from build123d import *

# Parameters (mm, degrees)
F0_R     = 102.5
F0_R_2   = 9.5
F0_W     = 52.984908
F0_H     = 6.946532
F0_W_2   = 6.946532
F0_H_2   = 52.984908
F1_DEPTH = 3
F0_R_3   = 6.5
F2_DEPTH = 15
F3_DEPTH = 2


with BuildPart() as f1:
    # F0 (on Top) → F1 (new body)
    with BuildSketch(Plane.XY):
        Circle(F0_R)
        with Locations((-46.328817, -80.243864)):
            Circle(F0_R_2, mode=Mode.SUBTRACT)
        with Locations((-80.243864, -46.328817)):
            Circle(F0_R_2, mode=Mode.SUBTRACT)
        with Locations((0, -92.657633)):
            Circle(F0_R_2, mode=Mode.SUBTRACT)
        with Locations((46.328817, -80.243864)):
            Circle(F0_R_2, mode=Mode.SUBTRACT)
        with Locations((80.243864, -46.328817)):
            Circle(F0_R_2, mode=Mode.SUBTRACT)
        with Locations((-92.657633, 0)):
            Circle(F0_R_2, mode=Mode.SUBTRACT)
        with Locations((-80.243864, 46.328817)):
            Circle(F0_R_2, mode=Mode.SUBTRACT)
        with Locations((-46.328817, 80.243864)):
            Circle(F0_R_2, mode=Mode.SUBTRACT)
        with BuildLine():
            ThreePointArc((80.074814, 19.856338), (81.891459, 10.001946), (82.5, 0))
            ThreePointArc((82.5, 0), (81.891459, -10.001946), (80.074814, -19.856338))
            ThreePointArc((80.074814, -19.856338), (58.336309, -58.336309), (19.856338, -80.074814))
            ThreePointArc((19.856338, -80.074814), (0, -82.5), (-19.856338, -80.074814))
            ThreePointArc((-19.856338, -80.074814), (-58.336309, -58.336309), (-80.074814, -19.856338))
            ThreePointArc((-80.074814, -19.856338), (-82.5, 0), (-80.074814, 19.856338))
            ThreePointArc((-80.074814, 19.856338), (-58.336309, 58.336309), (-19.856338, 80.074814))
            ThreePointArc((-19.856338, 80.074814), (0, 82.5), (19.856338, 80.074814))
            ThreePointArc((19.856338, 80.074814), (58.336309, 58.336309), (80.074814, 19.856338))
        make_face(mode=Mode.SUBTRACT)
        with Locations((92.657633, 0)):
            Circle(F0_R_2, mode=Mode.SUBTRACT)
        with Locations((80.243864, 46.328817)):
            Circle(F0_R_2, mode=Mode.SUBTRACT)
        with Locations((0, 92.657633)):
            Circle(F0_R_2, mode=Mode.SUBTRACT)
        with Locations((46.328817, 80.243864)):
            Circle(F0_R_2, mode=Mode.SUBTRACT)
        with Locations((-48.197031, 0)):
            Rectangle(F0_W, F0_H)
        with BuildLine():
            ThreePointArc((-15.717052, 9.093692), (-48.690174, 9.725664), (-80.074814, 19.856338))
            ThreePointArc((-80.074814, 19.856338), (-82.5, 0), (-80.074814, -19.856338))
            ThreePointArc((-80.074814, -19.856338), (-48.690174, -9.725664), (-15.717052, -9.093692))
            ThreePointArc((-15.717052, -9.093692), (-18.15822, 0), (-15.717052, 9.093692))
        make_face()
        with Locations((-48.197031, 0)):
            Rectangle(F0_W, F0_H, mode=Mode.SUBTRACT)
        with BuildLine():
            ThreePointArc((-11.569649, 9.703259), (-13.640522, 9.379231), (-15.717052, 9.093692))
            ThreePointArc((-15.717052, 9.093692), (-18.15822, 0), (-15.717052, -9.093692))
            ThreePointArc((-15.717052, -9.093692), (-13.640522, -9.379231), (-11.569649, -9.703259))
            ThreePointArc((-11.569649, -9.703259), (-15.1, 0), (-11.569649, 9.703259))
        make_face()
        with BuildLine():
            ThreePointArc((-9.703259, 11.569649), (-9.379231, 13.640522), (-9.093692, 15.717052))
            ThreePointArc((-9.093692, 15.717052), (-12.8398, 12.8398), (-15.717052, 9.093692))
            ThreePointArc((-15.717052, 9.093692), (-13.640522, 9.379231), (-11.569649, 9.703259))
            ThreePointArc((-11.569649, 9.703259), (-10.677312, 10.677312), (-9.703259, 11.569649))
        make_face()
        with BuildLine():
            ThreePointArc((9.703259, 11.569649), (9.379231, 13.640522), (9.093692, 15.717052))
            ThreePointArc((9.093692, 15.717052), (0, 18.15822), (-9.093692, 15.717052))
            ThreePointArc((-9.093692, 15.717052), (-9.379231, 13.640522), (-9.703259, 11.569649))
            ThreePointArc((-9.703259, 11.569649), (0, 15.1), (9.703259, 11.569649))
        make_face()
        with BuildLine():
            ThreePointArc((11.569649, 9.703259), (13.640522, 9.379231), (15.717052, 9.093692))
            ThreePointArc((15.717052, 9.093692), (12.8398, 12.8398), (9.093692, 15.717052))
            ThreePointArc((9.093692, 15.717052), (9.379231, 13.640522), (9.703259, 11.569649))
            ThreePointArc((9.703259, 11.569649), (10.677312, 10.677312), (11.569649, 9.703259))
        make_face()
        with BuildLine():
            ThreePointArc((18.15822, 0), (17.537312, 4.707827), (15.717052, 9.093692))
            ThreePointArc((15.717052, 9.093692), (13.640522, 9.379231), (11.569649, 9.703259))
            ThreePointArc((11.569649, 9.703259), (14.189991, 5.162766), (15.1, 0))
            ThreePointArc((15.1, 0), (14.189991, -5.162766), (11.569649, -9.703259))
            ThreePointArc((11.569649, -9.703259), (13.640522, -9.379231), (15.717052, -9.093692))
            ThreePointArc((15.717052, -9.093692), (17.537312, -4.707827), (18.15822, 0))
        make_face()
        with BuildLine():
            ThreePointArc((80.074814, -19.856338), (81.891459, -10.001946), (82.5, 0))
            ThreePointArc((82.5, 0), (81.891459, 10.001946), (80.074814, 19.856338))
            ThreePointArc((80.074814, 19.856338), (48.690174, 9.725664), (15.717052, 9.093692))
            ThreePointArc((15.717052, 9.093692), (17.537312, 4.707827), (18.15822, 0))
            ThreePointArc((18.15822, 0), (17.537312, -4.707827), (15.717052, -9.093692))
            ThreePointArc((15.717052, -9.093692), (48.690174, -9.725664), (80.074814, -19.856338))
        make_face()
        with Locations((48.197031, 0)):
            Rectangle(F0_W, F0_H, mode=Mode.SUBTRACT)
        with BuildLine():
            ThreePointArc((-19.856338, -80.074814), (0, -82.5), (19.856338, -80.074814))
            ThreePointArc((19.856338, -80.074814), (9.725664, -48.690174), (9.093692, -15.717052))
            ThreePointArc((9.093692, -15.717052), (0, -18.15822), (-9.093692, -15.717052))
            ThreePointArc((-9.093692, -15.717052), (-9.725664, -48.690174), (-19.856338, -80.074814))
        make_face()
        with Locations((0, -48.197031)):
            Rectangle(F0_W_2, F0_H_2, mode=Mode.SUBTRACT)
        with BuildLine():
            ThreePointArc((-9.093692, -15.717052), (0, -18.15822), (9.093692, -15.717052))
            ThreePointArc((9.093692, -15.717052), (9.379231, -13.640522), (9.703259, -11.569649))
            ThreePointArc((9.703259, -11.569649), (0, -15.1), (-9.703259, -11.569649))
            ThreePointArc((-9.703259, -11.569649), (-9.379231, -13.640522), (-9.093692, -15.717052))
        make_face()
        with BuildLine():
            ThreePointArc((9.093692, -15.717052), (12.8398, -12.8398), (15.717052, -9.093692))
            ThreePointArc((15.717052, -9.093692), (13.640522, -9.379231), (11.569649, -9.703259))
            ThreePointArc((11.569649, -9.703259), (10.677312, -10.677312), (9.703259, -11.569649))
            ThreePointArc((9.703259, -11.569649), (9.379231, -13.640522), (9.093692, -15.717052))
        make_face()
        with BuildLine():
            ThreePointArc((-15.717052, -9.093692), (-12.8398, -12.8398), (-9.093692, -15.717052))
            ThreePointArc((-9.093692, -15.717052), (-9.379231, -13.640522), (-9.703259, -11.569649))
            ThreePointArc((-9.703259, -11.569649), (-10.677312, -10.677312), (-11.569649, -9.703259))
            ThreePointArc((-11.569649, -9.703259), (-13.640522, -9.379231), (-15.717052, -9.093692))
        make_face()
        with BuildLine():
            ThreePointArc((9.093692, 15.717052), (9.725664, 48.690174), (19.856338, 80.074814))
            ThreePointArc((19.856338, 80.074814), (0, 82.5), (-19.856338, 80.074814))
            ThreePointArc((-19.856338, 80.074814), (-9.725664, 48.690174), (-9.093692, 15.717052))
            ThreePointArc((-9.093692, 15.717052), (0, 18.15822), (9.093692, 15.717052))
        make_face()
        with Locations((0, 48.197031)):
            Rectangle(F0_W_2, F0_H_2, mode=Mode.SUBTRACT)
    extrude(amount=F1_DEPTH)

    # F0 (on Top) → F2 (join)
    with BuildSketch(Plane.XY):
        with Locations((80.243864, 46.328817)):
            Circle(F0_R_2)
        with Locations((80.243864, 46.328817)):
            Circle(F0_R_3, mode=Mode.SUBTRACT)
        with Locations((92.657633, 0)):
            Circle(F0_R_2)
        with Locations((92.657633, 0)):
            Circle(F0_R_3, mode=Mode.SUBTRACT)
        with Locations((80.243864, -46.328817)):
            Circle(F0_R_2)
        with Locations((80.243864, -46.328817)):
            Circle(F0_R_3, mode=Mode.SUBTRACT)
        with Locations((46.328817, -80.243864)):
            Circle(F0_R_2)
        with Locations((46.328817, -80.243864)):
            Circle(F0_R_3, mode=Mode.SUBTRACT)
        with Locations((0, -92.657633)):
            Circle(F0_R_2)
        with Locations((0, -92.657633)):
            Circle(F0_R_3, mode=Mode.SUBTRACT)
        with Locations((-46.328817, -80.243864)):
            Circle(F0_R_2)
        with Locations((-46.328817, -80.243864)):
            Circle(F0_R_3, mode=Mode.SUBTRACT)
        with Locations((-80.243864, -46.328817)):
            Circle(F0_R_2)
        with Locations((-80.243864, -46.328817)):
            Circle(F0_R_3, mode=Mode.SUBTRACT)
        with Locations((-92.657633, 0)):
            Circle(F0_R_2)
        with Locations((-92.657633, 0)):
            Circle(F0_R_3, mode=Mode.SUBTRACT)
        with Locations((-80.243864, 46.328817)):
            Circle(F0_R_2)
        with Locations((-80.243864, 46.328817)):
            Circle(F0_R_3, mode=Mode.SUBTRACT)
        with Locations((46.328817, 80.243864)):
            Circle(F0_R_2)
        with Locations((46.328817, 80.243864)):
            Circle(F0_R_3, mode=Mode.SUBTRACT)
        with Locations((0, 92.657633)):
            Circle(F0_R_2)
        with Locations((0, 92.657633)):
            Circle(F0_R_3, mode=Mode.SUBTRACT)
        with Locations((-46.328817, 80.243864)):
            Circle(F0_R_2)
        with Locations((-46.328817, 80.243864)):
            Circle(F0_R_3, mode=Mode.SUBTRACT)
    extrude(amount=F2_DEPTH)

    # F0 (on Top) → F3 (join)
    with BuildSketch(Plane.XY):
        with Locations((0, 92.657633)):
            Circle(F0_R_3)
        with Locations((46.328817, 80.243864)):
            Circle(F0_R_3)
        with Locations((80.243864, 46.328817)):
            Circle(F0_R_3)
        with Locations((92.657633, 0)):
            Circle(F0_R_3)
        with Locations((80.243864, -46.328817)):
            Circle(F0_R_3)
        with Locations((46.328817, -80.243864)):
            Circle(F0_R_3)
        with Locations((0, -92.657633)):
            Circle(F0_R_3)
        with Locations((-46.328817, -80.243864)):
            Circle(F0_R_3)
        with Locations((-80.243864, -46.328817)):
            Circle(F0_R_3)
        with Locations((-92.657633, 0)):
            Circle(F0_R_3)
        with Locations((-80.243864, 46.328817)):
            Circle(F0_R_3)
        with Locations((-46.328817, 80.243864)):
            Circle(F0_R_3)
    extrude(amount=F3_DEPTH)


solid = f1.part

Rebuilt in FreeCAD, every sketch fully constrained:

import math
import FreeCAD as App
import Part
import Sketcher
from FreeCAD import Vector

doc = App.newDocument("Part")
body = doc.addObject("PartDesign::Body", "Body")

sketch1 = body.newObject("Sketcher::SketchObject", "Sketch")
sketch1.AttachmentSupport = (doc.getObject("XY_Plane"), [""])
sketch1.MapMode = "FlatFace"
sketch1.addGeometry([
    Part.Circle(Vector(0, 0, 0), Vector(0, 0, 1), 102.5),
    Part.Circle(Vector(-46.328817, -80.243864, 0), Vector(0, 0, 1), 9.5),
    Part.Circle(Vector(-80.243864, -46.328817, 0), Vector(0, 0, 1), 9.5),
    Part.ArcOfCircle(Part.Circle(Vector(-121.11317, -30.062673, 0), Vector(0, 0, 1), 112.934318), math.radians(-26.285399), math.radians(7.297783)),
    Part.ArcOfCircle(Part.Circle(Vector(0.000003, 0.000003, 0), Vector(0, 0, 1), 82.500004), math.radians(-166.07315), math.radians(-103.92685)),
    Part.ArcOfCircle(Part.Circle(Vector(-30.062673, -121.11317, 0), Vector(0, 0, 1), 112.934318), math.radians(82.702217), math.radians(116.285399)),
    Part.ArcOfCircle(Part.Circle(Vector(0.000017, 0.000017, 0), Vector(0, 0, 1), 18.158243), math.radians(-149.946837), math.radians(-120.053163)),
    Part.Circle(Vector(0, -92.657633, 0), Vector(0, 0, 1), 9.5),
    Part.Circle(Vector(46.328817, -80.243864, 0), Vector(0, 0, 1), 9.5),
    Part.LineSegment(Vector(3.473266, -74.689485, 0), Vector(-3.473266, -74.689485, 0)),
    Part.LineSegment(Vector(-3.473266, -74.689485, 0), Vector(-3.473266, -21.704577, 0)),
    Part.LineSegment(Vector(-3.473266, -21.704577, 0), Vector(3.473266, -21.704577, 0)),
    Part.LineSegment(Vector(3.473266, -21.704577, 0), Vector(3.473266, -74.689485, 0)),
    Part.ArcOfCircle(Part.Circle(Vector(-0.000003, 0.000003, 0), Vector(0, 0, 1), 82.500004), math.radians(-76.07315), math.radians(-13.92685)),
    Part.ArcOfCircle(Part.Circle(Vector(121.11317, -30.062673, 0), Vector(0, 0, 1), 112.934318), math.radians(172.702217), math.radians(206.285399)),
    Part.ArcOfCircle(Part.Circle(Vector(-0.000017, 0.000017, 0), Vector(0, 0, 1), 18.158243), math.radians(-59.946837), math.radians(-30.053163)),
    Part.ArcOfCircle(Part.Circle(Vector(30.062673, -121.11317, 0), Vector(0, 0, 1), 112.934318), math.radians(63.714601), math.radians(97.297783)),
    Part.Circle(Vector(80.243864, -46.328817, 0), Vector(0, 0, 1), 9.5),
    Part.Circle(Vector(-92.657633, 0, 0), Vector(0, 0, 1), 9.5),
    Part.Circle(Vector(-80.243864, 46.328817, 0), Vector(0, 0, 1), 9.5),
    Part.LineSegment(Vector(-21.704577, -3.473266, 0), Vector(-74.689485, -3.473266, 0)),
    Part.LineSegment(Vector(-74.689485, -3.473266, 0), Vector(-74.689485, 3.473266, 0)),
    Part.LineSegment(Vector(-74.689485, 3.473266, 0), Vector(-21.704577, 3.473266, 0)),
    Part.LineSegment(Vector(-21.704577, 3.473266, 0), Vector(-21.704577, -3.473266, 0)),
    Part.ArcOfCircle(Part.Circle(Vector(0.000017, -0.000017, 0), Vector(0, 0, 1), 18.158243), math.radians(120.053163), math.radians(149.946837)),
    Part.ArcOfCircle(Part.Circle(Vector(-30.062673, 121.11317, 0), Vector(0, 0, 1), 112.934318), math.radians(-116.285399), math.radians(-82.702217)),
    Part.ArcOfCircle(Part.Circle(Vector(0.000003, -0.000003, 0), Vector(0, 0, 1), 82.500004), math.radians(103.92685), math.radians(166.07315)),
    Part.ArcOfCircle(Part.Circle(Vector(-121.11317, 30.062673, 0), Vector(0, 0, 1), 112.934318), math.radians(-7.297783), math.radians(26.285399)),
    Part.Circle(Vector(-46.328817, 80.243864, 0), Vector(0, 0, 1), 9.5),
    Part.ArcOfCircle(Part.Circle(Vector(0, 0.000002, 0), Vector(0, 0, 1), 15.100002), math.radians(-129.985958), math.radians(-50.014042)),
    Part.ArcOfCircle(Part.Circle(Vector(0.000184, 0.000184, 0), Vector(0, 0, 1), 15.10026), math.radians(-140.013951), math.radians(-129.986049)),
    Part.ArcOfCircle(Part.Circle(Vector(0.000002, 0, 0), Vector(0, 0, 1), 15.100002), math.radians(140.014042), math.radians(219.985958)),
    Part.ArcOfCircle(Part.Circle(Vector(0.000184, -0.000184, 0), Vector(0, 0, 1), 15.10026), math.radians(129.986049), math.radians(140.013951)),
    Part.ArcOfCircle(Part.Circle(Vector(0, -0.000002, 0), Vector(0, 0, 1), 15.100002), math.radians(50.014042), math.radians(129.985958)),
    Part.ArcOfCircle(Part.Circle(Vector(-0.000184, -0.000184, 0), Vector(0, 0, 1), 15.10026), math.radians(39.986049), math.radians(50.013951)),
    Part.ArcOfCircle(Part.Circle(Vector(-0.000005, -0.000001, 0), Vector(0, 0, 1), 15.100005), math.radians(0.000004), math.radians(39.985954)),
    Part.ArcOfCircle(Part.Circle(Vector(-0.000005, 0.000001, 0), Vector(0, 0, 1), 15.100005), math.radians(-39.985954), math.radians(-0.000004)),
    Part.ArcOfCircle(Part.Circle(Vector(-0.000184, 0.000184, 0), Vector(0, 0, 1), 15.10026), math.radians(-50.013951), math.radians(-39.986049)),
    Part.LineSegment(Vector(74.689485, -3.473266, 0), Vector(21.704577, -3.473266, 0)),
    Part.LineSegment(Vector(21.704577, -3.473266, 0), Vector(21.704577, 3.473266, 0)),
    Part.LineSegment(Vector(21.704577, 3.473266, 0), Vector(74.689485, 3.473266, 0)),
    Part.LineSegment(Vector(74.689485, 3.473266, 0), Vector(74.689485, -3.473266, 0)),
    Part.LineSegment(Vector(3.473266, 21.704577, 0), Vector(-3.473266, 21.704577, 0)),
    Part.LineSegment(Vector(-3.473266, 21.704577, 0), Vector(-3.473266, 74.689485, 0)),
    Part.LineSegment(Vector(-3.473266, 74.689485, 0), Vector(3.473266, 74.689485, 0)),
    Part.LineSegment(Vector(3.473266, 74.689485, 0), Vector(3.473266, 21.704577, 0)),
    Part.ArcOfCircle(Part.Circle(Vector(-0.000003, -0.000003, 0), Vector(0, 0, 1), 82.500004), math.radians(13.92685), math.radians(76.07315)),
    Part.ArcOfCircle(Part.Circle(Vector(30.062673, 121.11317, 0), Vector(0, 0, 1), 112.934318), math.radians(-97.297783), math.radians(-63.714601)),
    Part.ArcOfCircle(Part.Circle(Vector(-0.000017, -0.000017, 0), Vector(0, 0, 1), 18.158243), math.radians(30.053163), math.radians(59.946837)),
    Part.ArcOfCircle(Part.Circle(Vector(121.11317, 30.062673, 0), Vector(0, 0, 1), 112.934318), math.radians(153.714601), math.radians(187.297783)),
    Part.Circle(Vector(92.657633, 0, 0), Vector(0, 0, 1), 9.5),
    Part.Circle(Vector(80.243864, 46.328817, 0), Vector(0, 0, 1), 9.5),
    Part.Circle(Vector(0, 92.657633, 0), Vector(0, 0, 1), 9.5),
    Part.Circle(Vector(46.328817, 80.243864, 0), Vector(0, 0, 1), 9.5),
], False)
sketch1.addConstraint([
    Sketcher.Constraint("Coincident", 3, 1, 4, 2),
    Sketcher.Constraint("Coincident", 4, 1, 5, 2),
    Sketcher.Constraint("Coincident", 5, 1, 6, 1),
    Sketcher.Constraint("Coincident", 6, 2, 3, 2),
    Sketcher.Constraint("Coincident", 9, 2, 10, 1),
    Sketcher.Constraint("Coincident", 10, 2, 11, 1),
    Sketcher.Constraint("Coincident", 11, 2, 12, 1),
    Sketcher.Constraint("Coincident", 12, 2, 9, 1),
    Sketcher.Constraint("Coincident", 13, 1, 14, 2),
    Sketcher.Constraint("Coincident", 14, 1, 15, 1),
    Sketcher.Constraint("Coincident", 15, 2, 16, 2),
    Sketcher.Constraint("Coincident", 16, 1, 13, 2),
    Sketcher.Constraint("Coincident", 20, 2, 21, 1),
    Sketcher.Constraint("Coincident", 21, 2, 22, 1),
    Sketcher.Constraint("Coincident", 22, 2, 23, 1),
    Sketcher.Constraint("Coincident", 23, 2, 20, 1),
    Sketcher.Constraint("Coincident", 24, 2, 25, 2),
    Sketcher.Constraint("Coincident", 25, 1, 26, 2),
    Sketcher.Constraint("Coincident", 26, 1, 27, 2),
    Sketcher.Constraint("Coincident", 27, 1, 24, 1),
    Sketcher.Constraint("Coincident", 29, 1, 30, 2),
    Sketcher.Constraint("Coincident", 30, 1, 31, 2),
    Sketcher.Constraint("Coincident", 31, 1, 32, 2),
    Sketcher.Constraint("Coincident", 32, 1, 33, 2),
    Sketcher.Constraint("Coincident", 33, 1, 34, 2),
    Sketcher.Constraint("Coincident", 34, 1, 35, 2),
    Sketcher.Constraint("Coincident", 35, 1, 36, 2),
    Sketcher.Constraint("Coincident", 36, 1, 37, 2),
    Sketcher.Constraint("Coincident", 37, 1, 29, 2),
    Sketcher.Constraint("Coincident", 38, 2, 39, 1),
    Sketcher.Constraint("Coincident", 39, 2, 40, 1),
    Sketcher.Constraint("Coincident", 40, 2, 41, 1),
    Sketcher.Constraint("Coincident", 41, 2, 38, 1),
    Sketcher.Constraint("Coincident", 42, 2, 43, 1),
    Sketcher.Constraint("Coincident", 43, 2, 44, 1),
    Sketcher.Constraint("Coincident", 44, 2, 45, 1),
    Sketcher.Constraint("Coincident", 45, 2, 42, 1),
    Sketcher.Constraint("Coincident", 46, 1, 47, 2),
    Sketcher.Constraint("Coincident", 47, 1, 48, 1),
    Sketcher.Constraint("Coincident", 48, 2, 49, 2),
    Sketcher.Constraint("Coincident", 49, 1, 46, 2),
    Sketcher.Constraint("Horizontal", 9),
    Sketcher.Constraint("Vertical", 10),
    Sketcher.Constraint("Horizontal", 11),
    Sketcher.Constraint("Vertical", 12),
    Sketcher.Constraint("Horizontal", 20),
    Sketcher.Constraint("Vertical", 21),
    Sketcher.Constraint("Horizontal", 22),
    Sketcher.Constraint("Vertical", 23),
    Sketcher.Constraint("Horizontal", 38),
    Sketcher.Constraint("Vertical", 39),
    Sketcher.Constraint("Horizontal", 40),
    Sketcher.Constraint("Vertical", 41),
    Sketcher.Constraint("Horizontal", 42),
    Sketcher.Constraint("Vertical", 43),
    Sketcher.Constraint("Horizontal", 44),
    Sketcher.Constraint("Vertical", 45),
    Sketcher.Constraint("Coincident", 0, 3, -1, 1),
    Sketcher.Constraint("Coincident", 4, 3, -1, 1),
    Sketcher.Constraint("Coincident", 13, 3, -1, 1),
    Sketcher.Constraint("Coincident", 26, 3, -1, 1),
    Sketcher.Constraint("Coincident", 29, 3, -1, 1),
    Sketcher.Constraint("Coincident", 31, 3, -1, 1),
    Sketcher.Constraint("Coincident", 33, 3, -1, 1),
    Sketcher.Constraint("Coincident", 35, 3, -1, 1),
    Sketcher.Constraint("Coincident", 36, 3, -1, 1),
    Sketcher.Constraint("Coincident", 46, 3, -1, 1),
    Sketcher.Constraint("PointOnObject", 7, 3, -2),
    Sketcher.Constraint("PointOnObject", 18, 3, -1),
    Sketcher.Constraint("PointOnObject", 50, 3, -1),
    Sketcher.Constraint("PointOnObject", 52, 3, -2),
    Sketcher.Constraint("PointOnObject", 35, 1, -1),
    Sketcher.Constraint("Diameter", 0, 205.0),
    Sketcher.Constraint("Diameter", 1, 19.0),
    Sketcher.Constraint("Diameter", 2, 19.0),
    Sketcher.Constraint("Diameter", 7, 19.0),
    Sketcher.Constraint("Diameter", 8, 19.0),
    Sketcher.Constraint("Diameter", 17, 19.0),
    Sketcher.Constraint("Diameter", 18, 19.0),
    Sketcher.Constraint("Diameter", 19, 19.0),
    Sketcher.Constraint("Diameter", 28, 19.0),
    Sketcher.Constraint("Diameter", 50, 19.0),
    Sketcher.Constraint("Diameter", 51, 19.0),
    Sketcher.Constraint("Diameter", 52, 19.0),
    Sketcher.Constraint("Diameter", 53, 19.0),
    Sketcher.Constraint("Radius", 29, 15.100002),
    Sketcher.Constraint("Radius", 31, 15.100002),
    Sketcher.Constraint("Radius", 33, 15.100002),
    Sketcher.Constraint("DistanceX", -1, 1, 35, 1, 15.1),
    Sketcher.Constraint("Radius", 3, 112.934318),
    Sketcher.Constraint("Radius", 5, 112.934318),
    Sketcher.Constraint("Radius", 14, 112.934318),
    Sketcher.Constraint("Radius", 16, 112.934318),
    Sketcher.Constraint("Radius", 25, 112.934318),
    Sketcher.Constraint("Radius", 27, 112.934318),
    Sketcher.Constraint("Radius", 30, 15.10026),
    Sketcher.Constraint("Radius", 32, 15.10026),
    Sketcher.Constraint("Radius", 34, 15.10026),
    Sketcher.Constraint("Radius", 37, 15.10026),
    Sketcher.Constraint("Radius", 47, 112.934318),
    Sketcher.Constraint("Radius", 49, 112.934318),
    Sketcher.Constraint("Radius", 4, 82.500004),
    Sketcher.Constraint("Radius", 6, 18.158243),
    Sketcher.Constraint("Radius", 13, 82.500004),
    Sketcher.Constraint("Radius", 15, 18.158243),
    Sketcher.Constraint("Radius", 24, 18.158243),
    Sketcher.Constraint("Radius", 26, 82.500004),
    Sketcher.Constraint("Radius", 46, 82.500004),
    Sketcher.Constraint("Radius", 48, 18.158243),
    Sketcher.Constraint("DistanceX", 20, 2, 20, 1, 52.984908),
    Sketcher.Constraint("DistanceX", 38, 2, 38, 1, 52.984908),
    Sketcher.Constraint("DistanceY", 10, 1, 10, 2, 52.984908),
    Sketcher.Constraint("DistanceY", 43, 1, 43, 2, 52.984908),
    Sketcher.Constraint("DistanceX", 9, 2, 9, 1, 6.946532),
    Sketcher.Constraint("DistanceX", 42, 2, 42, 1, 6.946532),
    Sketcher.Constraint("DistanceY", 21, 1, 21, 2, 6.946532),
    Sketcher.Constraint("DistanceY", 39, 1, 39, 2, 6.946532),
    Sketcher.Constraint("DistanceX", 3, 3, -1, 1, 121.11317),
    Sketcher.Constraint("DistanceY", 5, 3, -1, 1, 121.11317),
    Sketcher.Constraint("DistanceX", -1, 1, 14, 3, 121.11317),
    Sketcher.Constraint("DistanceY", 16, 3, -1, 1, 121.11317),
    Sketcher.Constraint("DistanceY", -1, 1, 25, 3, 121.11317),
    Sketcher.Constraint("DistanceX", 27, 3, -1, 1, 121.11317),
    Sketcher.Constraint("DistanceY", -1, 1, 47, 3, 121.11317),
    Sketcher.Constraint("DistanceX", -1, 1, 49, 3, 121.11317),
    Sketcher.Constraint("DistanceY", 4, 1, -1, 1, 19.856338),
    Sketcher.Constraint("DistanceX", 6, 2, -1, 1, 9.093692),
    Sketcher.Constraint("DistanceY", 6, 2, -1, 1, 15.717052),
    Sketcher.Constraint("DistanceX", -1, 1, 13, 1, 19.856338),
    Sketcher.Constraint("DistanceX", -1, 1, 15, 2, 15.717052),
    Sketcher.Constraint("DistanceY", 15, 2, -1, 1, 9.093692),
    Sketcher.Constraint("DistanceX", 24, 2, -1, 1, 15.717052),
    Sketcher.Constraint("DistanceY", -1, 1, 24, 2, 9.093692),
    Sketcher.Constraint("DistanceX", 26, 1, -1, 1, 19.856338),
    Sketcher.Constraint("DistanceX", 29, 1, -1, 1, 9.703259),
    Sketcher.Constraint("DistanceX", 30, 1, -1, 1, 11.569649),
    Sketcher.Constraint("DistanceX", 31, 1, -1, 1, 11.569649),
    Sketcher.Constraint("DistanceX", 32, 1, -1, 1, 9.703259),
    Sketcher.Constraint("DistanceX", -1, 1, 33, 1, 9.703259),
    Sketcher.Constraint("DistanceX", -1, 1, 34, 1, 11.569649),
    Sketcher.Constraint("DistanceX", -1, 1, 36, 1, 11.569649),
    Sketcher.Constraint("DistanceX", -1, 1, 37, 1, 9.703259),
    Sketcher.Constraint("DistanceY", -1, 1, 46, 1, 19.856338),
    Sketcher.Constraint("DistanceX", -1, 1, 48, 2, 9.093692),
    Sketcher.Constraint("DistanceY", -1, 1, 48, 2, 15.717052),
    Sketcher.Constraint("DistanceX", 1, 3, -1, 1, 46.328817),
    Sketcher.Constraint("DistanceY", 1, 3, -1, 1, 80.243864),
    Sketcher.Constraint("DistanceX", 2, 3, -1, 1, 80.243864),
    Sketcher.Constraint("DistanceY", 2, 3, -1, 1, 46.328817),
    Sketcher.Constraint("DistanceY", 7, 3, -1, 1, 92.657633),
    Sketcher.Constraint("DistanceX", -1, 1, 8, 3, 46.328817),
    Sketcher.Constraint("DistanceY", 8, 3, -1, 1, 80.243864),
    Sketcher.Constraint("DistanceX", -1, 1, 17, 3, 80.243864),
    Sketcher.Constraint("DistanceY", 17, 3, -1, 1, 46.328817),
    Sketcher.Constraint("DistanceX", 18, 3, -1, 1, 92.657633),
    Sketcher.Constraint("DistanceX", 19, 3, -1, 1, 80.243864),
    Sketcher.Constraint("DistanceY", -1, 1, 19, 3, 46.328817),
    Sketcher.Constraint("DistanceX", 28, 3, -1, 1, 46.328817),
    Sketcher.Constraint("DistanceY", -1, 1, 28, 3, 80.243864),
    Sketcher.Constraint("DistanceX", -1, 1, 50, 3, 92.657633),
    Sketcher.Constraint("DistanceX", -1, 1, 51, 3, 80.243864),
    Sketcher.Constraint("DistanceY", -1, 1, 51, 3, 46.328817),
    Sketcher.Constraint("DistanceY", -1, 1, 52, 3, 92.657633),
    Sketcher.Constraint("DistanceX", -1, 1, 53, 3, 46.328817),
    Sketcher.Constraint("DistanceY", -1, 1, 53, 3, 80.243864),
    Sketcher.Constraint("DistanceX", 5, 1, -1, 1, 15.717052),
    Sketcher.Constraint("DistanceX", 9, 2, -1, 1, 3.473266),
    Sketcher.Constraint("DistanceY", 9, 2, -1, 1, 74.689485),
    Sketcher.Constraint("DistanceX", -1, 1, 14, 1, 9.093692),
    Sketcher.Constraint("DistanceX", 20, 2, -1, 1, 74.689485),
    Sketcher.Constraint("DistanceY", 20, 2, -1, 1, 3.473266),
    Sketcher.Constraint("DistanceX", 27, 1, -1, 1, 9.093692),
    Sketcher.Constraint("DistanceX", -1, 1, 38, 2, 21.704577),
    Sketcher.Constraint("DistanceY", 38, 2, -1, 1, 3.473266),
    Sketcher.Constraint("DistanceX", 42, 2, -1, 1, 3.473266),
    Sketcher.Constraint("DistanceY", -1, 1, 42, 2, 21.704577),
    Sketcher.Constraint("DistanceX", -1, 1, 47, 1, 15.717052),
])
pad1 = body.newObject("PartDesign::Pad", "Pad")
pad1.Profile = sketch1
pad1.Length = 3

sketch2 = body.newObject("Sketcher::SketchObject", "Sketch001")
sketch2.AttachmentSupport = (doc.getObject("XY_Plane"), [""])
sketch2.MapMode = "FlatFace"
sketch2.addGeometry([
    Part.Circle(Vector(80, 46, 0), Vector(0, 0, 1), 10),
    Part.Circle(Vector(80, 46, 0), Vector(0, 0, 1), 6),
    Part.Circle(Vector(93, 0, 0), Vector(0, 0, 1), 10),
    Part.Circle(Vector(93, 0, 0), Vector(0, 0, 1), 6),
    Part.Circle(Vector(80, -46, 0), Vector(0, 0, 1), 10),
    Part.Circle(Vector(80, -46, 0), Vector(0, 0, 1), 6),
    Part.Circle(Vector(46, -80, 0), Vector(0, 0, 1), 10),
    Part.Circle(Vector(46, -80, 0), Vector(0, 0, 1), 6),
    Part.Circle(Vector(0, -93, 0), Vector(0, 0, 1), 10),
    Part.Circle(Vector(0, -93, 0), Vector(0, 0, 1), 6),
    Part.Circle(Vector(-46, -80, 0), Vector(0, 0, 1), 10),
    Part.Circle(Vector(-46, -80, 0), Vector(0, 0, 1), 6),
    Part.Circle(Vector(-80, -46, 0), Vector(0, 0, 1), 10),
    Part.Circle(Vector(-80, -46, 0), Vector(0, 0, 1), 6),
    Part.Circle(Vector(-93, 0, 0), Vector(0, 0, 1), 10),
    Part.Circle(Vector(-93, 0, 0), Vector(0, 0, 1), 6),
    Part.Circle(Vector(-80, 46, 0), Vector(0, 0, 1), 10),
    Part.Circle(Vector(-80, 46, 0), Vector(0, 0, 1), 6),
    Part.Circle(Vector(46, 80, 0), Vector(0, 0, 1), 10),
    Part.Circle(Vector(46, 80, 0), Vector(0, 0, 1), 6),
    Part.Circle(Vector(0, 93, 0), Vector(0, 0, 1), 10),
    Part.Circle(Vector(0, 93, 0), Vector(0, 0, 1), 6),
    Part.Circle(Vector(-46, 80, 0), Vector(0, 0, 1), 10),
    Part.Circle(Vector(-46, 80, 0), Vector(0, 0, 1), 6),
], False)
sketch2.addConstraint([
    Sketcher.Constraint("Coincident", 1, 3, 0, 3),
    Sketcher.Constraint("Coincident", 3, 3, 2, 3),
    Sketcher.Constraint("Coincident", 5, 3, 4, 3),
    Sketcher.Constraint("Coincident", 7, 3, 6, 3),
    Sketcher.Constraint("Coincident", 9, 3, 8, 3),
    Sketcher.Constraint("Coincident", 11, 3, 10, 3),
    Sketcher.Constraint("Coincident", 13, 3, 12, 3),
    Sketcher.Constraint("Coincident", 15, 3, 14, 3),
    Sketcher.Constraint("Coincident", 17, 3, 16, 3),
    Sketcher.Constraint("Coincident", 19, 3, 18, 3),
    Sketcher.Constraint("Coincident", 21, 3, 20, 3),
    Sketcher.Constraint("Coincident", 23, 3, 22, 3),
    Sketcher.Constraint("Equal", 0, 2),
    Sketcher.Constraint("Equal", 1, 3),
    Sketcher.Constraint("Equal", 2, 4),
    Sketcher.Constraint("Equal", 3, 5),
    Sketcher.Constraint("Equal", 4, 6),
    Sketcher.Constraint("Equal", 5, 7),
    Sketcher.Constraint("Equal", 6, 8),
    Sketcher.Constraint("Equal", 7, 9),
    Sketcher.Constraint("Equal", 8, 10),
    Sketcher.Constraint("Equal", 9, 11),
    Sketcher.Constraint("Equal", 10, 12),
    Sketcher.Constraint("Equal", 11, 13),
    Sketcher.Constraint("Equal", 12, 14),
    Sketcher.Constraint("Equal", 13, 15),
    Sketcher.Constraint("Equal", 14, 16),
    Sketcher.Constraint("Equal", 15, 17),
    Sketcher.Constraint("Equal", 16, 18),
    Sketcher.Constraint("Equal", 17, 19),
    Sketcher.Constraint("Equal", 18, 20),
    Sketcher.Constraint("Equal", 19, 21),
    Sketcher.Constraint("Equal", 20, 22),
    Sketcher.Constraint("Equal", 21, 23),
    Sketcher.Constraint("Symmetric", 0, 3, 12, 3, -1, 1),
    Sketcher.Constraint("Symmetric", 2, 3, 14, 3, -1, 1),
    Sketcher.Constraint("Symmetric", 4, 3, 16, 3, -1, 1),
    Sketcher.Constraint("Symmetric", 10, 3, 18, 3, -1, 1),
    Sketcher.Constraint("Symmetric", 8, 3, 20, 3, -1, 1),
    Sketcher.Constraint("Symmetric", 6, 3, 22, 3, -1, 1),
    Sketcher.Constraint("Symmetric", 6, 3, 10, 3, -2),
    Sketcher.Constraint("Symmetric", 4, 3, 12, 3, -2),
    Sketcher.Constraint("PointOnObject", 2, 3, -1),
    Sketcher.Constraint("PointOnObject", 8, 3, -2),
    Sketcher.Constraint("Diameter", 0, 19.0),
    Sketcher.Constraint("Diameter", 1, 13.0),
    Sketcher.Constraint("DistanceX", 0, 3, 2, 3, 12.413769),
    Sketcher.Constraint("DistanceY", 6, 3, 0, 3, 126.572681),
    Sketcher.Constraint("DistanceY", 8, 3, 6, 3, 12.413769),
    Sketcher.Constraint("DistanceX", 10, 3, 4, 3, 126.572681),
    Sketcher.Constraint("DistanceX", -1, 1, 0, 3, 80.243864),
    Sketcher.Constraint("DistanceY", -1, 1, 0, 3, 46.328817),
])
pad2 = body.newObject("PartDesign::Pad", "Pad001")
pad2.Profile = sketch2
pad2.Length = 15

sketch3 = body.newObject("Sketcher::SketchObject", "Sketch002")
sketch3.AttachmentSupport = (doc.getObject("XY_Plane"), [""])
sketch3.MapMode = "FlatFace"
sketch3.addGeometry([
    Part.Circle(Vector(0, 93, 0), Vector(0, 0, 1), 6),
    Part.Circle(Vector(46, 80, 0), Vector(0, 0, 1), 6),
    Part.Circle(Vector(80, 46, 0), Vector(0, 0, 1), 6),
    Part.Circle(Vector(93, 0, 0), Vector(0, 0, 1), 6),
    Part.Circle(Vector(80, -46, 0), Vector(0, 0, 1), 6),
    Part.Circle(Vector(46, -80, 0), Vector(0, 0, 1), 6),
    Part.Circle(Vector(0, -93, 0), Vector(0, 0, 1), 6),
    Part.Circle(Vector(-46, -80, 0), Vector(0, 0, 1), 6),
    Part.Circle(Vector(-80, -46, 0), Vector(0, 0, 1), 6),
    Part.Circle(Vector(-93, 0, 0), Vector(0, 0, 1), 6),
    Part.Circle(Vector(-80, 46, 0), Vector(0, 0, 1), 6),
    Part.Circle(Vector(-46, 80, 0), Vector(0, 0, 1), 6),
], False)
sketch3.addConstraint([
    Sketcher.Constraint("Equal", 0, 1),
    Sketcher.Constraint("Equal", 1, 2),
    Sketcher.Constraint("Equal", 2, 3),
    Sketcher.Constraint("Equal", 3, 4),
    Sketcher.Constraint("Equal", 4, 5),
    Sketcher.Constraint("Equal", 5, 6),
    Sketcher.Constraint("Equal", 6, 7),
    Sketcher.Constraint("Equal", 7, 8),
    Sketcher.Constraint("Equal", 8, 9),
    Sketcher.Constraint("Equal", 9, 10),
    Sketcher.Constraint("Equal", 10, 11),
    Sketcher.Constraint("Symmetric", 0, 3, 6, 3, -1, 1),
    Sketcher.Constraint("Symmetric", 1, 3, 7, 3, -1, 1),
    Sketcher.Constraint("Symmetric", 2, 3, 8, 3, -1, 1),
    Sketcher.Constraint("Symmetric", 3, 3, 9, 3, -1, 1),
    Sketcher.Constraint("Symmetric", 4, 3, 10, 3, -1, 1),
    Sketcher.Constraint("Symmetric", 5, 3, 11, 3, -1, 1),
    Sketcher.Constraint("Symmetric", 5, 3, 7, 3, -2),
    Sketcher.Constraint("Symmetric", 4, 3, 8, 3, -2),
    Sketcher.Constraint("PointOnObject", 0, 3, -2),
    Sketcher.Constraint("PointOnObject", 3, 3, -1),
    Sketcher.Constraint("Diameter", 0, 13.0),
    Sketcher.Constraint("DistanceY", 1, 3, 0, 3, 12.413769),
    Sketcher.Constraint("DistanceX", 2, 3, 3, 3, 12.413769),
    Sketcher.Constraint("DistanceY", 4, 3, 1, 3, 126.572681),
    Sketcher.Constraint("DistanceY", 5, 3, 1, 3, 160.487728),
    Sketcher.Constraint("DistanceX", 7, 3, 4, 3, 126.572681),
    Sketcher.Constraint("DistanceX", 8, 3, 4, 3, 160.487728),
])
pad3 = body.newObject("PartDesign::Pad", "Pad002")
pad3.Profile = sketch3
pad3.Length = 2

doc.recompute()
